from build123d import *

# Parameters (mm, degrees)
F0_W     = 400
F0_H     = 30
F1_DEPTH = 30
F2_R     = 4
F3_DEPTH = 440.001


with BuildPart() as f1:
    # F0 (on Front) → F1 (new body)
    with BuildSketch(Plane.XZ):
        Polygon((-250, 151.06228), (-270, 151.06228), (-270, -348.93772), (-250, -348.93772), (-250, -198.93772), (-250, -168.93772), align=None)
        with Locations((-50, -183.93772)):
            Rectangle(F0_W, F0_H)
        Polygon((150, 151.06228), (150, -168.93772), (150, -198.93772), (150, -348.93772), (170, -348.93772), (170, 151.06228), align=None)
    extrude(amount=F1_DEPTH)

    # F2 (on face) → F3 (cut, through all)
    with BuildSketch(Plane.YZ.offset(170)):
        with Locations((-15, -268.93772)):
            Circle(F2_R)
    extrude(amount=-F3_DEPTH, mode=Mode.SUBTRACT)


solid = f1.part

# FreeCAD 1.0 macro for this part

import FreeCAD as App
import Part
import Sketcher
Q = App.Units.Quantity


def add_polygon(sketch, points):
    """Adds a closed chain of lines whose ends are joined by coincident constraints."""
    first, n = sketch.GeometryCount, len(points)
    for a, b in zip(points, points[1:] + points[:1]):
        sketch.addGeometry(Part.LineSegment(App.Vector(*a, 0), App.Vector(*b, 0)), False)
    for i in range(n):
        sketch.addConstraint(Sketcher.Constraint("Coincident", first + i, 2, first + (i + 1) % n, 1))

doc = App.newDocument("Part")
body = doc.addObject("PartDesign::Body", "Body")

# Sketch on XZ plane
sketch1 = doc.addObject("Sketcher::SketchObject", "Sketch")
body.addObject(sketch1)
sketch1.AttachmentSupport = (doc.XZ_Plane, [""])
sketch1.MapMode = "FlatFace"
add_polygon(sketch1, [(-250, 151), (-270, 151), (-270, -349), (-250, -349), (-250, -199), (150, -199), (150, -349), (170, -349), (170, 151), (150, 151), (150, -169), (-250, -169)])  # lines 0-11
sketch1.addConstraint(Sketcher.Constraint("Horizontal", 0))
sketch1.addConstraint(Sketcher.Constraint("Vertical", 1))
sketch1.addConstraint(Sketcher.Constraint("Horizontal", 2))
sketch1.addConstraint(Sketcher.Constraint("Vertical", 3))
sketch1.addConstraint(Sketcher.Constraint("Horizontal", 4))
sketch1.addConstraint(Sketcher.Constraint("Vertical", 5))
sketch1.addConstraint(Sketcher.Constraint("Horizontal", 6))
sketch1.addConstraint(Sketcher.Constraint("Vertical", 7))
sketch1.addConstraint(Sketcher.Constraint("Horizontal", 8))
sketch1.addConstraint(Sketcher.Constraint("Vertical", 9))
sketch1.addConstraint(Sketcher.Constraint("Horizontal", 10))
sketch1.addConstraint(Sketcher.Constraint("Vertical", 11))
sketch1.addConstraint(Sketcher.Constraint("Horizontal", 2, 2, 5, 2))
sketch1.addConstraint(Sketcher.Constraint("Horizontal", 0, 2, 7, 2))
sketch1.addConstraint(Sketcher.Constraint("Vertical", 5, 2, 8, 2))
sketch1.addConstraint(Sketcher.Constraint("Vertical", 3, 2, 10, 2))
sketch1.addConstraint(Sketcher.Constraint("Equal", 2, 6))
sketch1.addConstraint(Sketcher.Constraint("DistanceX", 0, 2, 0, 1, Q("20 mm")))
sketch1.addConstraint(Sketcher.Constraint("DistanceX", 4, 1, 4, 2, Q("400 mm")))
sketch1.addConstraint(Sketcher.Constraint("DistanceY", 1, 2, 1, 1, Q("500 mm")))
sketch1.addConstraint(Sketcher.Constraint("DistanceY", 3, 1, 3, 2, Q("150 mm")))
sketch1.addConstraint(Sketcher.Constraint("DistanceY", 9, 2, 9, 1, Q("320 mm")))
sketch1.addConstraint(Sketcher.Constraint("DistanceX", 0, 2, -1, 1, Q("270 mm")))
sketch1.addConstraint(Sketcher.Constraint("DistanceY", -1, 1, 0, 2, Q("151.06228 mm")))
pad1 = doc.addObject("PartDesign::Pad", "Pad")
body.addObject(pad1)
pad1.Profile = sketch1
pad1.Length = 30

# Sketch on YZ plane
sketch2 = doc.addObject("Sketcher::SketchObject", "Sketch001")
body.addObject(sketch2)
sketch2.AttachmentSupport = (doc.YZ_Plane, [""])
sketch2.MapMode = "FlatFace"
sketch2.AttachmentOffset = App.Placement(App.Vector(0, 0, 170), App.Rotation())
sketch2.addGeometry(Part.Circle(App.Vector(-15, -268.9, 0), App.Vector(0, 0, 1), 4), False)
sketch2.addConstraint(Sketcher.Constraint("Diameter", 0, Q("8 mm")))
sketch2.addConstraint(Sketcher.Constraint("DistanceX", 0, 3, -1, 1, Q("15 mm")))
sketch2.addConstraint(Sketcher.Constraint("DistanceY", 0, 3, -1, 1, Q("268.93772 mm")))
pocket1 = doc.addObject("PartDesign::Pocket", "Pocket")
body.addObject(pocket1)
pocket1.Profile = sketch2
pocket1.Type = "ThroughAll"

doc.recompute()
